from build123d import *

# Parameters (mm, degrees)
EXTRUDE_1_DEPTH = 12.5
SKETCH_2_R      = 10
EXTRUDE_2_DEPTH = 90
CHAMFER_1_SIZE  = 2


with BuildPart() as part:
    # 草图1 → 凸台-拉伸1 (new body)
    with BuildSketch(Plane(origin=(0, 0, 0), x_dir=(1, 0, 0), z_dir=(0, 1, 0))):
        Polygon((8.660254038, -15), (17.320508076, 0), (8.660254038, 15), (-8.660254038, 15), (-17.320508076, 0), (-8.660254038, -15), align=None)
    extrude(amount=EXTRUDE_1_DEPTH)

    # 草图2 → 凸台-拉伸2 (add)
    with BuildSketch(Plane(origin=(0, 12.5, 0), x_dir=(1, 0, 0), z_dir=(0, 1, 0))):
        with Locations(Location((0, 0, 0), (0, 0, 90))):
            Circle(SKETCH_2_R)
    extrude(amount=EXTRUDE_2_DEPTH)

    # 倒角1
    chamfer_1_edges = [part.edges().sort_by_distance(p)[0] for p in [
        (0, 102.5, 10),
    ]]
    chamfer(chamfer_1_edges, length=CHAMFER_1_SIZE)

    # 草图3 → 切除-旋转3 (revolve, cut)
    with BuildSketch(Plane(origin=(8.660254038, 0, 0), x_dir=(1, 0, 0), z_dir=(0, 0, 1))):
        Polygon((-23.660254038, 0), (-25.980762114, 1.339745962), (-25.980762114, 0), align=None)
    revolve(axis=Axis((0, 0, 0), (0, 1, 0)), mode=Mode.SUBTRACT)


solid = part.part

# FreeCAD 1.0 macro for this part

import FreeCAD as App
import Part
import Sketcher
Q = App.Units.Quantity


def edges_at(feature, points):
    """Names of the edges that pass closest to the given points."""
    edges = feature.Shape.Edges
    near = lambda p: min(range(len(edges)), key=lambda i: edges[i].distToShape(Part.Vertex(*p))[0])
    return sorted({f"Edge{near(p) + 1}" for p in points})

doc = App.newDocument("Part")
params = doc.addObject("Spreadsheet::Sheet", "Params")
for row, (alias, value) in enumerate([
    ("pad1_length", "12.5 mm"),
    ("sketch2_diameter", "20 mm"),
    ("pad2_length", "90 mm"),
    ("chamfer_size", "2 mm"),
    ("groove_angle", "360 deg"),
], start=1):
    params.set(f"A{row}", alias)
    params.set(f"B{row}", "=" + value)
    params.setAlias(f"B{row}", alias)

body = doc.addObject("PartDesign::Body", "Body")

# Sketch on XZ plane
sketch1 = body.newObject("Sketcher::SketchObject", "Sketch")
sketch1.AttachmentSupport = (doc.getObject("XZ_Plane"), [""])
sketch1.MapMode = "FlatFace"
sketch1.addGeometry([
    Part.LineSegment(App.Vector(9, 15, 0), App.Vector(17, 0, 0)),  # 0
    Part.LineSegment(App.Vector(17, 0, 0), App.Vector(9, -15, 0)),  # 1
    Part.LineSegment(App.Vector(9, -15, 0), App.Vector(-9, -15, 0)),  # 2
    Part.LineSegment(App.Vector(-9, -15, 0), App.Vector(-17, 0, 0)),  # 3
    Part.LineSegment(App.Vector(-17, 0, 0), App.Vector(-9, 15, 0)),  # 4
    Part.LineSegment(App.Vector(-9, 15, 0), App.Vector(9, 15, 0)),  # 5
], False)
sketch1.addConstraint([
    Sketcher.Constraint("Coincident", 0, 2, 1, 1),
    Sketcher.Constraint("Coincident", 1, 2, 2, 1),
    Sketcher.Constraint("Coincident", 2, 2, 3, 1),
    Sketcher.Constraint("Coincident", 3, 2, 4, 1),
    Sketcher.Constraint("Coincident", 4, 2, 5, 1),
    Sketcher.Constraint("Coincident", 5, 2, 0, 1),
    Sketcher.Constraint("Horizontal", 2),
    Sketcher.Constraint("Horizontal", 5),
    Sketcher.Constraint("Symmetric", 0, 2, 3, 2, -1, 1),
    Sketcher.Constraint("Symmetric", 1, 2, 4, 2, -1, 1),
    Sketcher.Constraint("PointOnObject", 0, 2, -1),
    Sketcher.Constraint("Parallel", 0, 3),
    Sketcher.Constraint("Vertical", 2, 2, 4, 2),
    Sketcher.Constraint("Angle", 0, Q("-60 deg")),
    Sketcher.Constraint("DistanceY", 1, 2, -1, 1, 15.0),
    Sketcher.Constraint("DistanceX", 2, 2, 2, 1, 17.320508),
])
pad1 = body.newObject("PartDesign::Pad", "Pad")
pad1.Profile = sketch1
pad1.setExpression("Length", "Params.pad1_length")
pad1.Reversed = True

# Sketch on XZ plane
sketch2 = body.newObject("Sketcher::SketchObject", "Sketch001")
sketch2.AttachmentSupport = (doc.getObject("XZ_Plane"), [""])
sketch2.MapMode = "FlatFace"
sketch2.AttachmentOffset = App.Placement(App.Vector(0, 0, -12.5), App.Rotation())
sketch2.addGeometry(Part.Circle(App.Vector(0, 0, 0), App.Vector(0, 0, 1), 10), False)
sketch2.addConstraint([
    Sketcher.Constraint("Coincident", 0, 3, -1, 1),
    Sketcher.Constraint("Diameter", 0, 20.0),
])
sketch2.setExpression("Constraints[1]", "Params.sketch2_diameter")
pad2 = body.newObject("PartDesign::Pad", "Pad001")
pad2.Profile = sketch2
pad2.setExpression("Length", "Params.pad2_length")
pad2.Reversed = True
doc.recompute()

chamfer = body.newObject("PartDesign::Chamfer", "Chamfer")
chamfer.Base = (pad2, edges_at(pad2, [(0, 102.5, 10)]))
chamfer.setExpression("Size", "Params.chamfer_size")

# Sketch on XY plane
sketch3 = body.newObject("Sketcher::SketchObject", "Sketch002")
sketch3.AttachmentSupport = (doc.getObject("XY_Plane"), [""])
sketch3.MapMode = "FlatFace"
sketch3.addGeometry([
    Part.LineSegment(App.Vector(-15, 0, 0), App.Vector(-17.3, 1.3, 0)),
    Part.LineSegment(App.Vector(-17.3, 1.3, 0), App.Vector(-17.3, 0, 0)),
    Part.LineSegment(App.Vector(-17.3, 0, 0), App.Vector(-15, 0, 0)),
], False)
sketch3.addConstraint([
    Sketcher.Constraint("Coincident", 0, 2, 1, 1),
    Sketcher.Constraint("Coincident", 1, 2, 2, 1),
    Sketcher.Constraint("Coincident", 2, 2, 0, 1),
    Sketcher.Constraint("Vertical", 1),
    Sketcher.Constraint("Horizontal", 2),
    Sketcher.Constraint("PointOnObject", 1, 2, -1),
    Sketcher.Constraint("Angle", 0, Q("150 deg")),
    Sketcher.Constraint("DistanceX", 2, 2, -1, 1, 15.0),
    Sketcher.Constraint("DistanceX", 2, 1, 2, 2, 2.320508),
])
groove = body.newObject("PartDesign::Groove", "Groove")
groove.Profile = sketch3
groove.ReferenceAxis = (sketch3, ["V_Axis"])
groove.setExpression("Angle", "Params.groove_angle")

doc.recompute()
